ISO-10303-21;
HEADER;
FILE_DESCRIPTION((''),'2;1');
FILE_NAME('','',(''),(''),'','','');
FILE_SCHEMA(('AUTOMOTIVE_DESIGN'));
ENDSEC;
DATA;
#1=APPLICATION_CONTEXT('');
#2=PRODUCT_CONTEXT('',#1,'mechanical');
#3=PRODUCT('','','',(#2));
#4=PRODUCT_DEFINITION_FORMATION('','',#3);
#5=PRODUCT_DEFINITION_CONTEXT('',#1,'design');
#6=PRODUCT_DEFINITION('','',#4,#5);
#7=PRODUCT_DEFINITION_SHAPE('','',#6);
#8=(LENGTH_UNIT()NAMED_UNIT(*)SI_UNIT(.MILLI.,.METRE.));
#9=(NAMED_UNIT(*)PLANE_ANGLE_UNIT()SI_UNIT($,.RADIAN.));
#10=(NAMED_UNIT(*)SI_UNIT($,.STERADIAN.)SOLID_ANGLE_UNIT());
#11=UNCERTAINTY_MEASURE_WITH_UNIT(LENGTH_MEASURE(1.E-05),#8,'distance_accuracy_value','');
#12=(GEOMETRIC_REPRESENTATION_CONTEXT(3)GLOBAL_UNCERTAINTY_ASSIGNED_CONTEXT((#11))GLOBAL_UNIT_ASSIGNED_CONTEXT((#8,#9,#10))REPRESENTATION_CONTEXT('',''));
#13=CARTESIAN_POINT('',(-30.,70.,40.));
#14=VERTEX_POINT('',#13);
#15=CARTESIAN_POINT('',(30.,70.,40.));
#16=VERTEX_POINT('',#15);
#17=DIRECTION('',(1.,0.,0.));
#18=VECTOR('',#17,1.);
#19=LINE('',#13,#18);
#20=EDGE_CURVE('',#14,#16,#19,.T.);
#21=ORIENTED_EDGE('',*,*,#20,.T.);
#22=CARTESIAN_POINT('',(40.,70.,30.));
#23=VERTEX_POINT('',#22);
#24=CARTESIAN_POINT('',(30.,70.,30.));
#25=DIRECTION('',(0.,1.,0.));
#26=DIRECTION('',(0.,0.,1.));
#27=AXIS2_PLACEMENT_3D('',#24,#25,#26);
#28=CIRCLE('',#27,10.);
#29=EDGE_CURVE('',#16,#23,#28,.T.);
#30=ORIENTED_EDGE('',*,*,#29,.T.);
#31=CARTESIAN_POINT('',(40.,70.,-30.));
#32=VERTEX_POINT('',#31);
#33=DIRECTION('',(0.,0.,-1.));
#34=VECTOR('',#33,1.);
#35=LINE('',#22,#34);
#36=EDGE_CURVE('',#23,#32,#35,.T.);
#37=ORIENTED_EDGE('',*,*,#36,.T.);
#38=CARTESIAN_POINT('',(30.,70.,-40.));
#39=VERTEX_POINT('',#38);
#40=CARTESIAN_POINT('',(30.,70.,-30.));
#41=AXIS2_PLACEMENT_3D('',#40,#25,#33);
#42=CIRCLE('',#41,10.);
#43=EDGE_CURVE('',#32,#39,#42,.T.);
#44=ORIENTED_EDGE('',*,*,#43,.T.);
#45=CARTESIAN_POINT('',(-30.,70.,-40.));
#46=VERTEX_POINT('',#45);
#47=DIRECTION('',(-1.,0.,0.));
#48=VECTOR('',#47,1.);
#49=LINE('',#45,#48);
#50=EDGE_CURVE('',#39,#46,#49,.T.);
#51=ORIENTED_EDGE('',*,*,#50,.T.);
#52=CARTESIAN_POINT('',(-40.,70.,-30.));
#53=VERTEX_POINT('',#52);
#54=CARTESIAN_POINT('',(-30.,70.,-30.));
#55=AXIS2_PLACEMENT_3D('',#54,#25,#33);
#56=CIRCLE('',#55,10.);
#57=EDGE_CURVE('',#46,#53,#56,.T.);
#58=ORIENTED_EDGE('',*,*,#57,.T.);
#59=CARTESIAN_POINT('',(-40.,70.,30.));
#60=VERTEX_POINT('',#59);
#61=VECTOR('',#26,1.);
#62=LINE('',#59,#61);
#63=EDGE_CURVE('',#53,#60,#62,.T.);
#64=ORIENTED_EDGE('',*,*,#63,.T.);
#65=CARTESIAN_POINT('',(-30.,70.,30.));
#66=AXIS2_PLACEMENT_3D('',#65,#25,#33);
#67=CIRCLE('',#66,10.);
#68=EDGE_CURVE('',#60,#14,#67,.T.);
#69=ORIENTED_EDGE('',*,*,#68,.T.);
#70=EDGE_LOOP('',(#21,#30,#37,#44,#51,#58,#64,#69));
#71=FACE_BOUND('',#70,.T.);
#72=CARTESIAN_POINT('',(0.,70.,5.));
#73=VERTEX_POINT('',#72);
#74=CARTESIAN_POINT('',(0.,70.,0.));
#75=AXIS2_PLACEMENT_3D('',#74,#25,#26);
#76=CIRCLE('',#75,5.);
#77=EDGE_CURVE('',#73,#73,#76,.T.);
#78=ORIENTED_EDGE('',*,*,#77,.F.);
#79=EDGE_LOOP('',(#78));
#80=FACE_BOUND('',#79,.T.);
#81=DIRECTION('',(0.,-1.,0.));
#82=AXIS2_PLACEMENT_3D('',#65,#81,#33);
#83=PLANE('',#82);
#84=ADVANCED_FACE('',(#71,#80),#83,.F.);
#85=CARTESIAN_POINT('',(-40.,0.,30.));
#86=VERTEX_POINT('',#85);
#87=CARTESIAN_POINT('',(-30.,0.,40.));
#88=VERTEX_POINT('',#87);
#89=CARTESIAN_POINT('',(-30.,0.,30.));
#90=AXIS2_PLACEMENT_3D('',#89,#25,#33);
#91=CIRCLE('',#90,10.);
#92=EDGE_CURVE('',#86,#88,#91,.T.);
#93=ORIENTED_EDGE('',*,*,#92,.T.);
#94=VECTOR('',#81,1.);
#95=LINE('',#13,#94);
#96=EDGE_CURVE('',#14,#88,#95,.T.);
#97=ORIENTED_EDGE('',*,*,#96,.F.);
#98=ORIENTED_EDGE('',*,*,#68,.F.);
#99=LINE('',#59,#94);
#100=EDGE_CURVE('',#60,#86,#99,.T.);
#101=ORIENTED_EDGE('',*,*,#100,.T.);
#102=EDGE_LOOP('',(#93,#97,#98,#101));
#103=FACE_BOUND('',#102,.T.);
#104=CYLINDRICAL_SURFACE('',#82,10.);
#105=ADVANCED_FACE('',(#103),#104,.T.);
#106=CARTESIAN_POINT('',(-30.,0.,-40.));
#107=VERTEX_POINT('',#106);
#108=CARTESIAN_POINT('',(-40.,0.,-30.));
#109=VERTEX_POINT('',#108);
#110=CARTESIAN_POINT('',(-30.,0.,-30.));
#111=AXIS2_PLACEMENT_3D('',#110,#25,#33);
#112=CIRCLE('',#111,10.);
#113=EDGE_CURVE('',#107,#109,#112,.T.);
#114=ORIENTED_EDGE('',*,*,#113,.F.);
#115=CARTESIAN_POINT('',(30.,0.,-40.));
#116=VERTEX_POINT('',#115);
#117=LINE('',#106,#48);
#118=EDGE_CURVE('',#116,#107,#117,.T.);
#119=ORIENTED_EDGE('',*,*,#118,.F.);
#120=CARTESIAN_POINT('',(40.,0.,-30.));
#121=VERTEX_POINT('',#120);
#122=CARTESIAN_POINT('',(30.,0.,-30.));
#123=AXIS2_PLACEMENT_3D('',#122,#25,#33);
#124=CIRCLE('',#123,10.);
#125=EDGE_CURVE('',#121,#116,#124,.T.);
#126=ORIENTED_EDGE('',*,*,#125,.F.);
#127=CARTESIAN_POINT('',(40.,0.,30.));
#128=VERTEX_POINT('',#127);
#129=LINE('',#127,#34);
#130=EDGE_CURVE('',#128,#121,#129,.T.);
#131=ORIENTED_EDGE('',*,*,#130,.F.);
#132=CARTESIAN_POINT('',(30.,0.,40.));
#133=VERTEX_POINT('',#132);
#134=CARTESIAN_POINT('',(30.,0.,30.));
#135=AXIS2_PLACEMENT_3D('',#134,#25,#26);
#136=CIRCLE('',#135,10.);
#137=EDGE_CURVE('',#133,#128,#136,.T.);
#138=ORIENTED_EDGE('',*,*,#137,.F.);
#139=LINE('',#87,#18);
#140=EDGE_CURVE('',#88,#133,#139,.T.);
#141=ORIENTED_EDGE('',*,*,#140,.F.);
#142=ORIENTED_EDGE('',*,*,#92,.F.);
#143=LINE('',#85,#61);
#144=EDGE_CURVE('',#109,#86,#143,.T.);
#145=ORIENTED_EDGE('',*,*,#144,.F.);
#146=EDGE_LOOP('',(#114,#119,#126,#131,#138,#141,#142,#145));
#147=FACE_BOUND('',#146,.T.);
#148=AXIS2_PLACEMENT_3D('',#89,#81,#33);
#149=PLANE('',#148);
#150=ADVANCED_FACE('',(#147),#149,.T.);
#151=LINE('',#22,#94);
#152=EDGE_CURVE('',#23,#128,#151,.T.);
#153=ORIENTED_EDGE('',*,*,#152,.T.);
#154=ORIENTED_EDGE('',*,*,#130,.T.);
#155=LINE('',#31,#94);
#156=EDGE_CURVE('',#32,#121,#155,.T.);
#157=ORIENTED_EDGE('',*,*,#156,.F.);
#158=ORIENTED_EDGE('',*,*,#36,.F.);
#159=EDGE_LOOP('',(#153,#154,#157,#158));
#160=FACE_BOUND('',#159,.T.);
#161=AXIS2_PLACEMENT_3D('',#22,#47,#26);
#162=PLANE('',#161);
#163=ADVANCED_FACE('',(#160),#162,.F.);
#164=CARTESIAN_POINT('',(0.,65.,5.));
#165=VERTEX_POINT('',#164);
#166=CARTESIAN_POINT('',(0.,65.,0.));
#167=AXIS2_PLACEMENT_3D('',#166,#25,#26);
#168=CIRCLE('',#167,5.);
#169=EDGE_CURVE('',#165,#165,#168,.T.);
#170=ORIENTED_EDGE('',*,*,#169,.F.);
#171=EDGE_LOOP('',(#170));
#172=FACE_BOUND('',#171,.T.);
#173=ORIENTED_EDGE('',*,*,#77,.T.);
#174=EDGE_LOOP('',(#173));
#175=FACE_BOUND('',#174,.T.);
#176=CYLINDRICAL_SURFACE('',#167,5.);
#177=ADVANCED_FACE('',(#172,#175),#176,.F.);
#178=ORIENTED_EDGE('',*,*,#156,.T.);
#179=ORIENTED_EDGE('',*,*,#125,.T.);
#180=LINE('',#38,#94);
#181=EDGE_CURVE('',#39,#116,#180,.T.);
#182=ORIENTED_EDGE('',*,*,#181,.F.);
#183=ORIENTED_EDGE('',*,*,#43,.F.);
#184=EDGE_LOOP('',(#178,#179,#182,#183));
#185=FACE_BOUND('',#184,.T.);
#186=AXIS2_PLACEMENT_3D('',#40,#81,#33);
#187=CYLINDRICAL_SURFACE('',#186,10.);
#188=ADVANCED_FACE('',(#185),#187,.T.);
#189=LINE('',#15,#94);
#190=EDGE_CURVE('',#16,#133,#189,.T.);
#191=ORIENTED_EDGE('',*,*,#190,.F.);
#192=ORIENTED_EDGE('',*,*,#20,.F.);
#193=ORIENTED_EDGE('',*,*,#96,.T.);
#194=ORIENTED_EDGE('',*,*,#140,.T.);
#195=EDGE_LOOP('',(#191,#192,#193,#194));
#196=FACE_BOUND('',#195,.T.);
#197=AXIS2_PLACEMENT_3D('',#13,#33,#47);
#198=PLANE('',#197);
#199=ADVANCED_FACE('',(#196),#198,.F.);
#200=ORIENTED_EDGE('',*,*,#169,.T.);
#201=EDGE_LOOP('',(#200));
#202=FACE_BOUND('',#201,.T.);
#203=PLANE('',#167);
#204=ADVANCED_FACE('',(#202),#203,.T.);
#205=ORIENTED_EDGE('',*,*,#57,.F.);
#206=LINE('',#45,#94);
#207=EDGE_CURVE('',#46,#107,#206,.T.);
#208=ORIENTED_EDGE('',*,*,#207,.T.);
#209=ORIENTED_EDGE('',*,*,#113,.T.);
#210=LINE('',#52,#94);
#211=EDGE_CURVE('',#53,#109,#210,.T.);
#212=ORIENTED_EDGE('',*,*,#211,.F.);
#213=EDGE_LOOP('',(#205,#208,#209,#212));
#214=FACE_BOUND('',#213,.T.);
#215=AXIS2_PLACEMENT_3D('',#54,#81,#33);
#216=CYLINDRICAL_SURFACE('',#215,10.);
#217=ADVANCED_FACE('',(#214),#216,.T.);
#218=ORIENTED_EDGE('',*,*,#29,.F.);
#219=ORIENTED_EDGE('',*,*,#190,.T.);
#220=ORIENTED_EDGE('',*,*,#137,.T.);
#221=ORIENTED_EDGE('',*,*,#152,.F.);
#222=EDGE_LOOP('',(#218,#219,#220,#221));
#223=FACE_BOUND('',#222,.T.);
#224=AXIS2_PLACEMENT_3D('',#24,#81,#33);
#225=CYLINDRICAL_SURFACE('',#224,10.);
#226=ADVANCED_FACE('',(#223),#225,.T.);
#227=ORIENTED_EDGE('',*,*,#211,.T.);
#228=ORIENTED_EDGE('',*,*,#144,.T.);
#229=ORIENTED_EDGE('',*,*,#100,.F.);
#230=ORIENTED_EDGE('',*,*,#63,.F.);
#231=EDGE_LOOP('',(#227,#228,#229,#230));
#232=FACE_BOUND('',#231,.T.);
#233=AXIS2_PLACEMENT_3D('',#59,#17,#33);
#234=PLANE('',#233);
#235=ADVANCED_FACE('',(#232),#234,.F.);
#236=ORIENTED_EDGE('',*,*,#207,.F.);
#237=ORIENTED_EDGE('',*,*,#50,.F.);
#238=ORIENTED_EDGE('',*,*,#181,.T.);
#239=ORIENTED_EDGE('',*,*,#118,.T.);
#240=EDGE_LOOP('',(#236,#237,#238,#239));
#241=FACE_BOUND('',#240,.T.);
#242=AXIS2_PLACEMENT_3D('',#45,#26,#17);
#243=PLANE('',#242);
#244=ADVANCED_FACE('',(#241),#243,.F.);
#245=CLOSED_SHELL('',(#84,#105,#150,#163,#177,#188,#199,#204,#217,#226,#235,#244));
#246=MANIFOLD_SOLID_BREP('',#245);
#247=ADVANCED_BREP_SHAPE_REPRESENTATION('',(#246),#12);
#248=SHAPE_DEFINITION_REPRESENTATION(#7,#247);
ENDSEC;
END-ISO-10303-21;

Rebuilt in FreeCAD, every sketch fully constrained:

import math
import FreeCAD as App
import Part
import Sketcher
from FreeCAD import Vector
Q = App.Units.Quantity

doc = App.newDocument("Part")
params = doc.addObject("Spreadsheet::Sheet", "Params")
for row, (alias, value) in enumerate([
    ("sketch1_radius", "10 mm"),
    ("sketch1_width", "60 mm"),
    ("pad1_length", "70 mm"),
    ("sketch2_diameter", "10 mm"),
    ("pocket1_length", "5 mm"),
], start=1):
    params.set(f"A{row}", alias)
    params.set(f"B{row}", "=" + value)
    params.setAlias(f"B{row}", alias)

body = doc.addObject("PartDesign::Body", "Body")

sketch1 = doc.addObject("Sketcher::SketchObject", "Sketch")
body.addObject(sketch1)
sketch1.AttachmentSupport = (doc.XZ_Plane, [""])
sketch1.MapMode = "FlatFace"
sketch1.addGeometry(Part.LineSegment(Vector(-30, 40, 0), Vector(30, 40, 0)), False)
sketch1.addGeometry(Part.ArcOfCircle(Part.Circle(Vector(30, 30, 0), Vector(0, 0, 1), 10), math.radians(0), math.radians(90)), False)
sketch1.addGeometry(Part.LineSegment(Vector(40, 30, 0), Vector(40, -30, 0)), False)
sketch1.addGeometry(Part.ArcOfCircle(Part.Circle(Vector(30, -30, 0), Vector(0, 0, 1), 10), math.radians(-90), math.radians(0)), False)
sketch1.addGeometry(Part.LineSegment(Vector(30, -40, 0), Vector(-30, -40, 0)), False)
sketch1.addGeometry(Part.ArcOfCircle(Part.Circle(Vector(-30, -30, 0), Vector(0, 0, 1), 10), math.radians(180), math.radians(270)), False)
sketch1.addGeometry(Part.LineSegment(Vector(-40, -30, 0), Vector(-40, 30, 0)), False)
sketch1.addGeometry(Part.ArcOfCircle(Part.Circle(Vector(-30, 30, 0), Vector(0, 0, 1), 10), math.radians(90), math.radians(180)), False)
sketch1.addConstraint(Sketcher.Constraint("Tangent", 0, 2, 1, 2))
sketch1.addConstraint(Sketcher.Constraint("Tangent", 1, 1, 2, 1))
sketch1.addConstraint(Sketcher.Constraint("Tangent", 2, 2, 3, 2))
sketch1.addConstraint(Sketcher.Constraint("Tangent", 3, 1, 4, 1))
sketch1.addConstraint(Sketcher.Constraint("Tangent", 4, 2, 5, 2))
sketch1.addConstraint(Sketcher.Constraint("Tangent", 5, 1, 6, 1))
sketch1.addConstraint(Sketcher.Constraint("Tangent", 6, 2, 7, 2))
sketch1.addConstraint(Sketcher.Constraint("Tangent", 7, 1, 0, 1))
sketch1.addConstraint(Sketcher.Constraint("Horizontal", 0))
sketch1.addConstraint(Sketcher.Constraint("Vertical", 2))
sketch1.addConstraint(Sketcher.Constraint("Horizontal", 4))
sketch1.addConstraint(Sketcher.Constraint("Vertical", 6))
sketch1.addConstraint(Sketcher.Constraint("Equal", 1, 3))
sketch1.addConstraint(Sketcher.Constraint("Equal", 3, 5))
sketch1.addConstraint(Sketcher.Constraint("Equal", 5, 7))
sketch1.addConstraint(Sketcher.Constraint("Symmetric", 1, 3, 5, 3, -1, 1))
sketch1.addConstraint(Sketcher.Constraint("Equal", 4, 2))
sketch1.addConstraint(Sketcher.Constraint("Radius", 1, Q("10 mm")))
sketch1.addConstraint(Sketcher.Constraint("DistanceX", 0, 1, 0, 2, Q("60 mm")))
sketch1.setExpression("Constraints[17]", "Params.sketch1_radius")
sketch1.setExpression("Constraints[18]", "Params.sketch1_width")
pad1 = doc.addObject("PartDesign::Pad", "Pad")
body.addObject(pad1)
pad1.Profile = sketch1
pad1.setExpression("Length", "Params.pad1_length")
pad1.Reversed = True

sketch2 = doc.addObject("Sketcher::SketchObject", "Sketch001")
body.addObject(sketch2)
sketch2.AttachmentSupport = (doc.XZ_Plane, [""])
sketch2.MapMode = "FlatFace"
sketch2.AttachmentOffset = App.Placement(Vector(0, 0, -70), App.Rotation())
sketch2.addGeometry(Part.Circle(Vector(0, 0, 0), Vector(0, 0, 1), 5), False)
sketch2.addConstraint(Sketcher.Constraint("Coincident", 0, 3, -1, 1))
sketch2.addConstraint(Sketcher.Constraint("Diameter", 0, Q("10 mm")))
sketch2.setExpression("Constraints[1]", "Params.sketch2_diameter")
pocket1 = doc.addObject("PartDesign::Pocket", "Pocket")
body.addObject(pocket1)
pocket1.Profile = sketch2
pocket1.setExpression("Length", "Params.pocket1_length")
pocket1.Reversed = True

doc.recompute()
